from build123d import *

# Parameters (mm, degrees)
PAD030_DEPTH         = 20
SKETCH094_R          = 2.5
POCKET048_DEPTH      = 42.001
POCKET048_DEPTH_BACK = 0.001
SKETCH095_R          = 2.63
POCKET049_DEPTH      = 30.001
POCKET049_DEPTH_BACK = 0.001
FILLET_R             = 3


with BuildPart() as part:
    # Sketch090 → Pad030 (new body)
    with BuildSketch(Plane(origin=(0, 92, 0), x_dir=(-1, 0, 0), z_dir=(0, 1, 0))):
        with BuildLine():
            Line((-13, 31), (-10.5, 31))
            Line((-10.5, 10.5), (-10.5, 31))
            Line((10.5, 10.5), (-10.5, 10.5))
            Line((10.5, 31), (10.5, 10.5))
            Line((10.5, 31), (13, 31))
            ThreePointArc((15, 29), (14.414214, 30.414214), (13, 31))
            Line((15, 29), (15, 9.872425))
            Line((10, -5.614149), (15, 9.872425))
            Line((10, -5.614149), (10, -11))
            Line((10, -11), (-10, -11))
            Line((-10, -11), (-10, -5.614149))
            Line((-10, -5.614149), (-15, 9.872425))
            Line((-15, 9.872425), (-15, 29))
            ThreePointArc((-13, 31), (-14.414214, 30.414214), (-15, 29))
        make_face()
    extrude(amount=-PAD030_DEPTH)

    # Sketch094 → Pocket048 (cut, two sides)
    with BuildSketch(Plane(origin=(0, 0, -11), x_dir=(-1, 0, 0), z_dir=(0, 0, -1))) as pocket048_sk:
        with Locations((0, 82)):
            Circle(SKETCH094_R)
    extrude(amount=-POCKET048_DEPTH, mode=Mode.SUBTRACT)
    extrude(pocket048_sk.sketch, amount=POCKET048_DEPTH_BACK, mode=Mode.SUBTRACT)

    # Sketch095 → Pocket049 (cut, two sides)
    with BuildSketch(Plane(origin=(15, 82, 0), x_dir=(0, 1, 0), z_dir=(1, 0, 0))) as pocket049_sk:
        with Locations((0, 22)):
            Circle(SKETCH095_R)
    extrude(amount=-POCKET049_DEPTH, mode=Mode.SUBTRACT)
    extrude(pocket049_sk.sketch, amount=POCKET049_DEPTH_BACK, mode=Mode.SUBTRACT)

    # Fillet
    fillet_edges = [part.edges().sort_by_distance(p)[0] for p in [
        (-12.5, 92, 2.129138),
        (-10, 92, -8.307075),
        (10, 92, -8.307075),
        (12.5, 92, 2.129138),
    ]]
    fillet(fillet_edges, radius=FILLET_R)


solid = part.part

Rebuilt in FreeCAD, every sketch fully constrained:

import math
import FreeCAD as App
import Part
import Sketcher


def edges_at(feature, points):
    """Names of the edges that pass closest to the given points."""
    edges = feature.Shape.Edges
    near = lambda p: min(range(len(edges)), key=lambda i: edges[i].distToShape(Part.Vertex(*p))[0])
    return sorted({f"Edge{near(p) + 1}" for p in points})

doc = App.newDocument("Part")
body = doc.addObject("PartDesign::Body", "Body")

sketch1 = body.newObject("Sketcher::SketchObject", "Sketch")
sketch1.AttachmentSupport = (doc.getObject("XZ_Plane"), [""])
sketch1.MapMode = "FlatFace"
sketch1.AttachmentOffset = App.Placement(App.Vector(0, 0, -92), App.Rotation())
sketch1.addGeometry([
    Part.LineSegment(App.Vector(10.5, 31, 0), App.Vector(13, 31, 0)),
    Part.ArcOfCircle(Part.Circle(App.Vector(13, 29, 0), App.Vector(0, 0, 1), 2), math.radians(0), math.radians(90)),
    Part.LineSegment(App.Vector(15, 29, 0), App.Vector(15, 9.9, 0)),
    Part.LineSegment(App.Vector(15, 9.9, 0), App.Vector(10, -5.6, 0)),
    Part.LineSegment(App.Vector(10, -5.6, 0), App.Vector(10, -11, 0)),
    Part.LineSegment(App.Vector(10, -11, 0), App.Vector(-10, -11, 0)),
    Part.LineSegment(App.Vector(-10, -11, 0), App.Vector(-10, -5.6, 0)),
    Part.LineSegment(App.Vector(-10, -5.6, 0), App.Vector(-15, 9.9, 0)),
    Part.LineSegment(App.Vector(-15, 9.9, 0), App.Vector(-15, 29, 0)),
    Part.ArcOfCircle(Part.Circle(App.Vector(-13, 29, 0), App.Vector(0, 0, 1), 2), math.radians(90), math.radians(180)),
    Part.LineSegment(App.Vector(-13, 31, 0), App.Vector(-10.5, 31, 0)),
    Part.LineSegment(App.Vector(-10.5, 31, 0), App.Vector(-10.5, 10.5, 0)),
    Part.LineSegment(App.Vector(-10.5, 10.5, 0), App.Vector(10.5, 10.5, 0)),
    Part.LineSegment(App.Vector(10.5, 10.5, 0), App.Vector(10.5, 31, 0)),
], False)
sketch1.addConstraint([
    Sketcher.Constraint("Tangent", 0, 2, 1, 2),
    Sketcher.Constraint("Tangent", 1, 1, 2, 1),
    Sketcher.Constraint("Coincident", 2, 2, 3, 1),
    Sketcher.Constraint("Coincident", 3, 2, 4, 1),
    Sketcher.Constraint("Coincident", 4, 2, 5, 1),
    Sketcher.Constraint("Coincident", 5, 2, 6, 1),
    Sketcher.Constraint("Coincident", 6, 2, 7, 1),
    Sketcher.Constraint("Coincident", 7, 2, 8, 1),
    Sketcher.Constraint("Tangent", 8, 2, 9, 2),
    Sketcher.Constraint("Tangent", 9, 1, 10, 1),
    Sketcher.Constraint("Coincident", 10, 2, 11, 1),
    Sketcher.Constraint("Coincident", 11, 2, 12, 1),
    Sketcher.Constraint("Coincident", 12, 2, 13, 1),
    Sketcher.Constraint("Coincident", 13, 2, 0, 1),
    Sketcher.Constraint("Horizontal", 0),
    Sketcher.Constraint("Vertical", 2),
    Sketcher.Constraint("Vertical", 4),
    Sketcher.Constraint("Horizontal", 5),
    Sketcher.Constraint("Vertical", 6),
    Sketcher.Constraint("Vertical", 8),
    Sketcher.Constraint("Horizontal", 10),
    Sketcher.Constraint("Vertical", 11),
    Sketcher.Constraint("Horizontal", 12),
    Sketcher.Constraint("Vertical", 13),
    Sketcher.Constraint("Equal", 1, 9),
    Sketcher.Constraint("Symmetric", 1, 3, 9, 3, -2),
    Sketcher.Constraint("Symmetric", 3, 2, 6, 2, -2),
    Sketcher.Constraint("Horizontal", 2, 2, 7, 2),
    Sketcher.Constraint("Equal", 0, 10),
    Sketcher.Constraint("Radius", 1, 1.999999),
    Sketcher.Constraint("DistanceX", 5, 2, 5, 1, 20.0),
    Sketcher.Constraint("DistanceX", 12, 1, 12, 2, 21.0),
    Sketcher.Constraint("DistanceX", 0, 1, 0, 2, 2.5),
    Sketcher.Constraint("DistanceY", 11, 2, 11, 1, 20.5),
    Sketcher.Constraint("DistanceY", -1, 1, 1, 3, 29.000001),
    Sketcher.Constraint("DistanceY", 4, 2, -1, 1, 11.0),
    Sketcher.Constraint("DistanceY", 4, 2, 4, 1, 5.385851),
    Sketcher.Constraint("Distance", 3, 16.27372),
])
pad1 = body.newObject("PartDesign::Pad", "Pad")
pad1.Profile = sketch1
pad1.Length = 20

sketch2 = body.newObject("Sketcher::SketchObject", "Sketch001")
sketch2.AttachmentSupport = (doc.getObject("XY_Plane"), [""])
sketch2.MapMode = "FlatFace"
sketch2.AttachmentOffset = App.Placement(App.Vector(0, 0, -11), App.Rotation())
sketch2.addGeometry(Part.Circle(App.Vector(0, 82, 0), App.Vector(0, 0, 1), 2.5), False)
sketch2.addConstraint([
    Sketcher.Constraint("PointOnObject", 0, 3, -2),
    Sketcher.Constraint("Diameter", 0, 5.0),
    Sketcher.Constraint("DistanceY", -1, 1, 0, 3, 82.0),
])
pocket1 = body.newObject("PartDesign::Pocket", "Pocket")
pocket1.Profile = sketch2
pocket1.Type = "ThroughAll"
pocket1.Midplane = True

sketch3 = body.newObject("Sketcher::SketchObject", "Sketch002")
sketch3.AttachmentSupport = (doc.getObject("YZ_Plane"), [""])
sketch3.MapMode = "FlatFace"
sketch3.AttachmentOffset = App.Placement(App.Vector(0, 0, 15), App.Rotation())
sketch3.addGeometry(Part.Circle(App.Vector(82, 22, 0), App.Vector(0, 0, 1), 2.6), False)
sketch3.addConstraint([
    Sketcher.Constraint("Diameter", 0, 5.26),
    Sketcher.Constraint("DistanceX", -1, 1, 0, 3, 82.0),
    Sketcher.Constraint("DistanceY", -1, 1, 0, 3, 22.0),
])
pocket2 = body.newObject("PartDesign::Pocket", "Pocket001")
pocket2.Profile = sketch3
pocket2.Type = "ThroughAll"
pocket2.Midplane = True
doc.recompute()

fillet = body.newObject("PartDesign::Fillet", "Fillet")
fillet.Base = (pocket2, edges_at(pocket2, [
    (-12.5, 92, 2.129),
    (-10, 92, -8.307),
    (10, 92, -8.307),
    (12.5, 92, 2.129),
]))
fillet.Radius = 3

doc.recompute()
